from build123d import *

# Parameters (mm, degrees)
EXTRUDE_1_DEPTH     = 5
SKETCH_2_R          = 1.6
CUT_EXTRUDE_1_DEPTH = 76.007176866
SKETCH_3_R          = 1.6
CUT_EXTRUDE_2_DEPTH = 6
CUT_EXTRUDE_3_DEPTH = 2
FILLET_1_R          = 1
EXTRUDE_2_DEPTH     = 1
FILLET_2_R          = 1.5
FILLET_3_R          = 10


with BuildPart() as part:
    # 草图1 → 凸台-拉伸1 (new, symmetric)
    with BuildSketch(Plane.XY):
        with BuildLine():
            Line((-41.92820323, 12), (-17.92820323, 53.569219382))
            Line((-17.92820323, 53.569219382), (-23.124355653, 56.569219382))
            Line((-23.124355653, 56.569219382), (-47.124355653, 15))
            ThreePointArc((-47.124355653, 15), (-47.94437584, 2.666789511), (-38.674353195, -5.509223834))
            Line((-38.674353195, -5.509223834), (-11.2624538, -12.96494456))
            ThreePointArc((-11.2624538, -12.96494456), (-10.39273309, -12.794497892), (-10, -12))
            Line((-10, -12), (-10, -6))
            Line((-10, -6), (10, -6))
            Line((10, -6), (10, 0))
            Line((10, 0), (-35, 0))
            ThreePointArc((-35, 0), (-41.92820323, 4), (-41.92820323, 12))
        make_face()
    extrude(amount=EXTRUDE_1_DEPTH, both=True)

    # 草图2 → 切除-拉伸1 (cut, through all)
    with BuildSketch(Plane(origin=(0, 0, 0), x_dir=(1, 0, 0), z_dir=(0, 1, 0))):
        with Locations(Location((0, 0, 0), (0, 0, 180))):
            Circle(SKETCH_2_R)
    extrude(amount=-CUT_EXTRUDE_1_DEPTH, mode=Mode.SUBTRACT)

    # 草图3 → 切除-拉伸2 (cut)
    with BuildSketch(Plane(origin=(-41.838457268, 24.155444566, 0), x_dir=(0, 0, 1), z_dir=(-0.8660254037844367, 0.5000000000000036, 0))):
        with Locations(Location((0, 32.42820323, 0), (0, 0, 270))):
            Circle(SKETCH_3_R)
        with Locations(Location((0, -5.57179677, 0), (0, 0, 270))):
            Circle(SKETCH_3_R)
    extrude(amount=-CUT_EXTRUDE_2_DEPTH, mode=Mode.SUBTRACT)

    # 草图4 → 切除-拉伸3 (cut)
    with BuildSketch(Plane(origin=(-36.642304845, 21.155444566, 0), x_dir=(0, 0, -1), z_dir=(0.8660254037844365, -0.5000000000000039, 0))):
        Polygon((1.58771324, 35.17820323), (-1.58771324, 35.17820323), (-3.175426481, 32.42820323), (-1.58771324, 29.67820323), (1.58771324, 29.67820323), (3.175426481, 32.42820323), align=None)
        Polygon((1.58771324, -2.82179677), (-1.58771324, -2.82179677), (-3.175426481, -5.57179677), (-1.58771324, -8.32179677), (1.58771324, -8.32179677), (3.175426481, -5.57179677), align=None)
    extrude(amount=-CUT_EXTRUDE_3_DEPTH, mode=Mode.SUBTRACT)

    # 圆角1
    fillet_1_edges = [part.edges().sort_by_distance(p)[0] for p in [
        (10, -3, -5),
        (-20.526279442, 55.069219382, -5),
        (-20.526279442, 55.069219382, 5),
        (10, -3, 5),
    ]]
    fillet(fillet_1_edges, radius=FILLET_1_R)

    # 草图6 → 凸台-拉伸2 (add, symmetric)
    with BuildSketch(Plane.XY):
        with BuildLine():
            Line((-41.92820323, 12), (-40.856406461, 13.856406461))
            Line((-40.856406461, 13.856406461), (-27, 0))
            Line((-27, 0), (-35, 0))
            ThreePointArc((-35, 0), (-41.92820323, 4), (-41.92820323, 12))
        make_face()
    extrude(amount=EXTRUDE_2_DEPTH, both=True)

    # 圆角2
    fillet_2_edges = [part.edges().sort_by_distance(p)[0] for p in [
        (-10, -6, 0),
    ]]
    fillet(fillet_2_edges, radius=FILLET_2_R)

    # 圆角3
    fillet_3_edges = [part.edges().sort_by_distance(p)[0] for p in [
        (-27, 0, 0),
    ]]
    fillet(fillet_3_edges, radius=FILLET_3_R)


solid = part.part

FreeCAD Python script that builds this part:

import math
import FreeCAD as App
import Part
import Sketcher
Q = App.Units.Quantity


def edges_at(feature, points):
    """Names of the edges that pass closest to the given points."""
    edges = feature.Shape.Edges
    near = lambda p: min(range(len(edges)), key=lambda i: edges[i].distToShape(Part.Vertex(*p))[0])
    return sorted({f"Edge{near(p) + 1}" for p in points})


def add_polygon(sketch, points):
    """Adds a closed chain of lines whose ends are joined by coincident constraints."""
    first, n = sketch.GeometryCount, len(points)
    for a, b in zip(points, points[1:] + points[:1]):
        sketch.addGeometry(Part.LineSegment(App.Vector(*a, 0), App.Vector(*b, 0)), False)
    for i in range(n):
        sketch.addConstraint(Sketcher.Constraint("Coincident", first + i, 2, first + (i + 1) % n, 1))

doc = App.newDocument("Part")
params = doc.addObject("Spreadsheet::Sheet", "Params")
for row, (alias, value) in enumerate([
    ("sketch1_radius", "14 mm"),
    ("sketch1_radius2", "1 mm"),
    ("sketch1_radius3", "8 mm"),
    ("sketch1_width", "20 mm"),
    ("sketch1_width2", "45 mm"),
    ("pad1_length", "10 mm"),
    ("sketch2_diameter", "3.2 mm"),
    ("sketch3_diameter", "3.2 mm"),
    ("pocket2_length", "6 mm"),
    ("pocket3_length", "2 mm"),
    ("fillet_radius", "1 mm"),
    ("sketch5_radius", "8 mm"),
    ("sketch5_width", "8 mm"),
    ("pad2_length", "2 mm"),
    ("fillet2_radius", "1.5 mm"),
    ("fillet3_radius", "10 mm"),
], start=1):
    params.set(f"A{row}", alias)
    params.set(f"B{row}", "=" + value)
    params.setAlias(f"B{row}", alias)

body = doc.addObject("PartDesign::Body", "Body")

# Sketch on XY plane
sketch1 = body.newObject("Sketcher::SketchObject", "Sketch")
sketch1.AttachmentSupport = (doc.getObject("XY_Plane"), [""])
sketch1.MapMode = "FlatFace"
sketch1.addGeometry([
    Part.LineSegment(App.Vector(-41.928203, 12, 0), App.Vector(-17.928203, 53.569219, 0)),  # 0
    Part.LineSegment(App.Vector(-17.928203, 53.569219, 0), App.Vector(-23.124356, 56.569219, 0)),  # 1
    Part.LineSegment(App.Vector(-23.124356, 56.569219, 0), App.Vector(-47.124356, 15, 0)),  # 2
    Part.ArcOfCircle(Part.Circle(App.Vector(-35, 8, 0), App.Vector(0, 0, 1), 14), math.radians(150), math.radians(254.784288)),  # 3
    Part.LineSegment(App.Vector(-38.674353, -5.509224, 0), App.Vector(-11.262454, -12.964945, 0)),  # 4
    Part.ArcOfCircle(Part.Circle(App.Vector(-11, -12, 0), App.Vector(0, 0, 1), 1), math.radians(-105.215712), math.radians(0)),  # 5
    Part.LineSegment(App.Vector(-10, -12, 0), App.Vector(-10, -6, 0)),  # 6
    Part.LineSegment(App.Vector(-10, -6, 0), App.Vector(10, -6, 0)),  # 7
    Part.LineSegment(App.Vector(10, -6, 0), App.Vector(10, 0, 0)),  # 8
    Part.LineSegment(App.Vector(10, 0, 0), App.Vector(-35, 0, 0)),  # 9
    Part.ArcOfCircle(Part.Circle(App.Vector(-35, 8, 0), App.Vector(0, 0, 1), 8), math.radians(150), math.radians(270)),  # 10
], False)
sketch1.addConstraint([
    Sketcher.Constraint("Coincident", 0, 2, 1, 1),
    Sketcher.Constraint("Coincident", 1, 2, 2, 1),
    Sketcher.Constraint("Tangent", 2, 2, 3, 1),
    Sketcher.Constraint("Tangent", 3, 2, 4, 1),
    Sketcher.Constraint("Tangent", 4, 2, 5, 1),
    Sketcher.Constraint("Tangent", 5, 2, 6, 1),
    Sketcher.Constraint("Coincident", 6, 2, 7, 1),
    Sketcher.Constraint("Coincident", 7, 2, 8, 1),
    Sketcher.Constraint("Coincident", 8, 2, 9, 1),
    Sketcher.Constraint("Tangent", 9, 2, 10, 2),
    Sketcher.Constraint("Tangent", 10, 1, 0, 1),
    Sketcher.Constraint("Vertical", 6),
    Sketcher.Constraint("Horizontal", 7),
    Sketcher.Constraint("Vertical", 8),
    Sketcher.Constraint("Horizontal", 9),
    Sketcher.Constraint("Coincident", 10, 3, 3, 3),
    Sketcher.Constraint("PointOnObject", 8, 2, -1),
    Sketcher.Constraint("Perpendicular", 0, 1),
    Sketcher.Constraint("Perpendicular", 1, 2),
    Sketcher.Constraint("Equal", 6, 8),
    Sketcher.Constraint("Radius", 3, Q("14 mm")),
    Sketcher.Constraint("Radius", 5, Q("1 mm")),
    Sketcher.Constraint("Radius", 10, Q("8 mm")),
    Sketcher.Constraint("DistanceX", 7, 1, 7, 2, Q("20 mm")),
    Sketcher.Constraint("DistanceX", 9, 2, 9, 1, Q("45 mm")),
    Sketcher.Constraint("DistanceY", 6, 1, 6, 2, Q("6 mm")),
    Sketcher.Constraint("Angle", 0, Q("60 deg")),
    Sketcher.Constraint("Distance", 0, Q("48 mm")),
    Sketcher.Constraint("DistanceX", 3, 3, -1, 1, Q("35 mm")),
])
sketch1.setExpression("Constraints[20]", "Params.sketch1_radius")
sketch1.setExpression("Constraints[21]", "Params.sketch1_radius2")
sketch1.setExpression("Constraints[22]", "Params.sketch1_radius3")
sketch1.setExpression("Constraints[23]", "Params.sketch1_width")
sketch1.setExpression("Constraints[24]", "Params.sketch1_width2")
pad1 = body.newObject("PartDesign::Pad", "Pad")
pad1.Profile = sketch1
pad1.setExpression("Length", "Params.pad1_length")
pad1.Midplane = True

# Sketch on XZ plane
sketch2 = body.newObject("Sketcher::SketchObject", "Sketch001")
sketch2.AttachmentSupport = (doc.getObject("XZ_Plane"), [""])
sketch2.MapMode = "FlatFace"
sketch2.addGeometry(Part.Circle(App.Vector(0, 0, 0), App.Vector(0, 0, 1), 1.6), False)
sketch2.addConstraint([
    Sketcher.Constraint("Coincident", 0, 3, -1, 1),
    Sketcher.Constraint("Diameter", 0, Q("3.2 mm")),
])
sketch2.setExpression("Constraints[1]", "Params.sketch2_diameter")
pocket1 = body.newObject("PartDesign::Pocket", "Pocket")
pocket1.Profile = sketch2
pocket1.Type = "ThroughAll"
pocket1.Reversed = True

# Sketch on an angled plane
sketch3 = body.newObject("Sketcher::SketchObject", "Sketch002")
sketch3.Placement = App.Placement(App.Vector(-41.838457, 24.155445, 0), App.Rotation(App.Vector(0, 0, 1), App.Vector(0.5, 0.866025404, 0), App.Vector(-0.866025404, 0.5, 0), "ZXY"))
sketch3.addGeometry([
    Part.Circle(App.Vector(0, 32.428203, 0), App.Vector(0, 0, 1), 1.6),
    Part.Circle(App.Vector(0, -5.571797, 0), App.Vector(0, 0, 1), 1.6),
], False)
sketch3.addConstraint([
    Sketcher.Constraint("Equal", 0, 1),
    Sketcher.Constraint("PointOnObject", 0, 3, -2),
    Sketcher.Constraint("PointOnObject", 1, 3, -2),
    Sketcher.Constraint("Diameter", 0, Q("3.2 mm")),
    Sketcher.Constraint("DistanceY", 1, 3, 0, 3, Q("38 mm")),
    Sketcher.Constraint("DistanceY", -1, 1, 0, 3, Q("32.428203 mm")),
])
sketch3.setExpression("Constraints[3]", "Params.sketch3_diameter")
pocket2 = body.newObject("PartDesign::Pocket", "Pocket001")
pocket2.Profile = sketch3
pocket2.setExpression("Length", "Params.pocket2_length")

# Sketch on an angled plane
sketch4 = body.newObject("Sketcher::SketchObject", "Sketch003")
sketch4.Placement = App.Placement(App.Vector(-36.642305, 21.155445, 0), App.Rotation(App.Vector(0, 0, -1), App.Vector(0.5, 0.866025404, 0), App.Vector(0.866025404, -0.5, 0), "ZXY"))
add_polygon(sketch4, [(1.587713, 35.178203), (-1.587713, 35.178203), (-3.175426, 32.428203), (-1.587713, 29.678203), (1.587713, 29.678203), (3.175426, 32.428203)])  # lines 0-5
add_polygon(sketch4, [(1.587713, -2.821797), (-1.587713, -2.821797), (-3.175426, -5.571797), (-1.587713, -8.321797), (1.587713, -8.321797), (3.175426, -5.571797)])  # lines 6-11
sketch4.addConstraint([
    Sketcher.Constraint("Horizontal", 0),
    Sketcher.Constraint("Horizontal", 3),
    Sketcher.Constraint("Horizontal", 6),
    Sketcher.Constraint("Horizontal", 9),
    Sketcher.Constraint("Symmetric", 1, 2, 4, 2, -2),
    Sketcher.Constraint("Symmetric", 7, 2, 10, 2, -2),
    Sketcher.Constraint("Parallel", 1, 4),
    Sketcher.Constraint("Parallel", 2, 5),
    Sketcher.Constraint("Parallel", 4, 7),
    Sketcher.Constraint("Parallel", 5, 8),
    Sketcher.Constraint("Parallel", 7, 10),
    Sketcher.Constraint("Parallel", 8, 11),
    Sketcher.Constraint("Vertical", 0, 2, 2, 2),
    Sketcher.Constraint("Vertical", 3, 2, 5, 2),
    Sketcher.Constraint("Vertical", 2, 2, 6, 2),
    Sketcher.Constraint("Vertical", 1, 2, 7, 2),
    Sketcher.Constraint("Vertical", 6, 2, 8, 2),
    Sketcher.Constraint("Angle", 1, Q("-120 deg")),
    Sketcher.Constraint("DistanceY", 6, 2, 0, 2, Q("38 mm")),
    Sketcher.Constraint("DistanceY", 2, 2, 0, 2, Q("5.5 mm")),
    Sketcher.Constraint("DistanceX", 0, 2, 0, 1, Q("3.175426 mm")),
    Sketcher.Constraint("DistanceY", -1, 1, 0, 2, Q("35.178203 mm")),
])
pocket3 = body.newObject("PartDesign::Pocket", "Pocket002")
pocket3.Profile = sketch4
pocket3.setExpression("Length", "Params.pocket3_length")
doc.recompute()

fillet = body.newObject("PartDesign::Fillet", "Fillet")
fillet.Base = (pocket3, edges_at(pocket3, [
    (10, -3, -5),
    (-20.526, 55.069, -5),
    (-20.526, 55.069, 5),
    (10, -3, 5),
]))
fillet.setExpression("Radius", "Params.fillet_radius")

# Sketch on XY plane
sketch5 = body.newObject("Sketcher::SketchObject", "Sketch004")
sketch5.AttachmentSupport = (doc.getObject("XY_Plane"), [""])
sketch5.MapMode = "FlatFace"
sketch5.addGeometry([
    Part.LineSegment(App.Vector(-40.856406, 13.856406, 0), App.Vector(-41.928203, 12, 0)),
    Part.ArcOfCircle(Part.Circle(App.Vector(-35, 8, 0), App.Vector(0, 0, 1), 8), math.radians(150), math.radians(270)),
    Part.LineSegment(App.Vector(-35, 0, 0), App.Vector(-27, 0, 0)),
    Part.LineSegment(App.Vector(-27, 0, 0), App.Vector(-40.856406, 13.856406, 0)),
], False)
sketch5.addConstraint([
    Sketcher.Constraint("Tangent", 0, 2, 1, 1),
    Sketcher.Constraint("Tangent", 1, 2, 2, 1),
    Sketcher.Constraint("Coincident", 2, 2, 3, 1),
    Sketcher.Constraint("Coincident", 3, 2, 0, 1),
    Sketcher.Constraint("Horizontal", 2),
    Sketcher.Constraint("PointOnObject", 1, 2, -1),
    Sketcher.Constraint("Radius", 1, Q("8 mm")),
    Sketcher.Constraint("DistanceX", 2, 1, 2, 2, Q("8 mm")),
    Sketcher.Constraint("Angle", 0, Q("-120 deg")),
    Sketcher.Constraint("Angle", 3, Q("135 deg")),
    Sketcher.Constraint("DistanceX", 1, 3, -1, 1, Q("35 mm")),
])
sketch5.setExpression("Constraints[6]", "Params.sketch5_radius")
sketch5.setExpression("Constraints[7]", "Params.sketch5_width")
pad2 = body.newObject("PartDesign::Pad", "Pad001")
pad2.Profile = sketch5
pad2.setExpression("Length", "Params.pad2_length")
pad2.Midplane = True
doc.recompute()

fillet2 = body.newObject("PartDesign::Fillet", "Fillet001")
fillet2.Base = (pad2, edges_at(pad2, [(-10, -6, 0)]))
fillet2.setExpression("Radius", "Params.fillet2_radius")
doc.recompute()

fillet3 = body.newObject("PartDesign::Fillet", "Fillet002")
fillet3.Base = (fillet2, edges_at(fillet2, [(-27, 0, 0)]))
fillet3.setExpression("Radius", "Params.fillet3_radius")

doc.recompute()
